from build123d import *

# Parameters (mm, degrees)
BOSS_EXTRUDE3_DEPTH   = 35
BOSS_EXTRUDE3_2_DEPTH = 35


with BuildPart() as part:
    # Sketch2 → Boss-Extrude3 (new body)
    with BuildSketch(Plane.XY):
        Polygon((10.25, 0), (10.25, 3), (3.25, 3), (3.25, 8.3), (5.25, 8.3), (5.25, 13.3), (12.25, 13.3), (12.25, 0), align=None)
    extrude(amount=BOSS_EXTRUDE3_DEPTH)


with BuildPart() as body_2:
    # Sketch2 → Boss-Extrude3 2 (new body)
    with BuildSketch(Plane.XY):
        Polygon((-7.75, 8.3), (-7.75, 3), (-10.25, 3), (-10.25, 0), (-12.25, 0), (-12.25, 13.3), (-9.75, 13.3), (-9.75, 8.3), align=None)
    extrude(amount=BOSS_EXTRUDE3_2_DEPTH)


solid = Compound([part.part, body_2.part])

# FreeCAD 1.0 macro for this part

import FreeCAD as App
import Part
import Sketcher

V = App.Vector

doc = App.newDocument("Part")
body = doc.addObject("PartDesign::Body", "Body")

# Sketch on XY plane
sketch1 = body.newObject("Sketcher::SketchObject", "Sketch")
sketch1.AttachmentSupport = (doc.getObject("XY_Plane"), [""])
sketch1.MapMode = "FlatFace"
sketch1.addGeometry(Part.LineSegment(V(10.2, 3, 0), V(10.2, 0, 0)), False)
sketch1.addGeometry(Part.LineSegment(V(10.2, 0, 0), V(12.2, 0, 0)), False)
sketch1.addGeometry(Part.LineSegment(V(12.2, 0, 0), V(12.2, 13.3, 0)), False)
sketch1.addGeometry(Part.LineSegment(V(12.2, 13.3, 0), V(5.2, 13.3, 0)), False)
sketch1.addGeometry(Part.LineSegment(V(5.2, 13.3, 0), V(5.2, 8.3, 0)), False)
sketch1.addGeometry(Part.LineSegment(V(5.2, 8.3, 0), V(3.2, 8.3, 0)), False)
sketch1.addGeometry(Part.LineSegment(V(3.2, 8.3, 0), V(3.2, 3, 0)), False)
sketch1.addGeometry(Part.LineSegment(V(3.2, 3, 0), V(10.2, 3, 0)), False)
sketch1.addConstraint(Sketcher.Constraint("Coincident", 0, 2, 1, 1))
sketch1.addConstraint(Sketcher.Constraint("Coincident", 1, 2, 2, 1))
sketch1.addConstraint(Sketcher.Constraint("Coincident", 2, 2, 3, 1))
sketch1.addConstraint(Sketcher.Constraint("Coincident", 3, 2, 4, 1))
sketch1.addConstraint(Sketcher.Constraint("Coincident", 4, 2, 5, 1))
sketch1.addConstraint(Sketcher.Constraint("Coincident", 5, 2, 6, 1))
sketch1.addConstraint(Sketcher.Constraint("Coincident", 6, 2, 7, 1))
sketch1.addConstraint(Sketcher.Constraint("Coincident", 7, 2, 0, 1))
sketch1.addConstraint(Sketcher.Constraint("Vertical", 0))
sketch1.addConstraint(Sketcher.Constraint("Horizontal", 1))
sketch1.addConstraint(Sketcher.Constraint("Vertical", 2))
sketch1.addConstraint(Sketcher.Constraint("Horizontal", 3))
sketch1.addConstraint(Sketcher.Constraint("Vertical", 4))
sketch1.addConstraint(Sketcher.Constraint("Horizontal", 5))
sketch1.addConstraint(Sketcher.Constraint("Vertical", 6))
sketch1.addConstraint(Sketcher.Constraint("Horizontal", 7))
sketch1.addConstraint(Sketcher.Constraint("PointOnObject", 0, 2, -1))
sketch1.addConstraint(Sketcher.Constraint("Equal", 1, 5))
sketch1.addConstraint(Sketcher.Constraint("DistanceX", 1, 1, 1, 2, 2.0))
sketch1.addConstraint(Sketcher.Constraint("DistanceX", 3, 2, 3, 1, 7.0))
sketch1.addConstraint(Sketcher.Constraint("DistanceY", 0, 2, 0, 1, 3.0))
sketch1.addConstraint(Sketcher.Constraint("DistanceY", 4, 2, 4, 1, 5.0))
sketch1.addConstraint(Sketcher.Constraint("DistanceY", 2, 1, 2, 2, 13.3))
sketch1.addConstraint(Sketcher.Constraint("DistanceX", -1, 1, 0, 2, 10.25))
pad1 = body.newObject("PartDesign::Pad", "Pad")
pad1.Profile = sketch1
pad1.Length = 35
body2 = doc.addObject("PartDesign::Body", "Body001")

# Sketch on XY plane
sketch2 = body2.newObject("Sketcher::SketchObject", "Sketch001")
sketch2.AttachmentSupport = (doc.getObject("XY_Plane001"), [""])
sketch2.MapMode = "FlatFace"
sketch2.addGeometry(Part.LineSegment(V(-7.8, 3, 0), V(-7.8, 8.3, 0)), False)
sketch2.addGeometry(Part.LineSegment(V(-7.8, 8.3, 0), V(-9.8, 8.3, 0)), False)
sketch2.addGeometry(Part.LineSegment(V(-9.8, 8.3, 0), V(-9.8, 13.3, 0)), False)
sketch2.addGeometry(Part.LineSegment(V(-9.8, 13.3, 0), V(-12.2, 13.3, 0)), False)
sketch2.addGeometry(Part.LineSegment(V(-12.2, 13.3, 0), V(-12.2, 0, 0)), False)
sketch2.addGeometry(Part.LineSegment(V(-12.2, 0, 0), V(-10.2, 0, 0)), False)
sketch2.addGeometry(Part.LineSegment(V(-10.2, 0, 0), V(-10.2, 3, 0)), False)
sketch2.addGeometry(Part.LineSegment(V(-10.2, 3, 0), V(-7.8, 3, 0)), False)
sketch2.addConstraint(Sketcher.Constraint("Coincident", 0, 2, 1, 1))
sketch2.addConstraint(Sketcher.Constraint("Coincident", 1, 2, 2, 1))
sketch2.addConstraint(Sketcher.Constraint("Coincident", 2, 2, 3, 1))
sketch2.addConstraint(Sketcher.Constraint("Coincident", 3, 2, 4, 1))
sketch2.addConstraint(Sketcher.Constraint("Coincident", 4, 2, 5, 1))
sketch2.addConstraint(Sketcher.Constraint("Coincident", 5, 2, 6, 1))
sketch2.addConstraint(Sketcher.Constraint("Coincident", 6, 2, 7, 1))
sketch2.addConstraint(Sketcher.Constraint("Coincident", 7, 2, 0, 1))
sketch2.addConstraint(Sketcher.Constraint("Vertical", 0))
sketch2.addConstraint(Sketcher.Constraint("Horizontal", 1))
sketch2.addConstraint(Sketcher.Constraint("Vertical", 2))
sketch2.addConstraint(Sketcher.Constraint("Horizontal", 3))
sketch2.addConstraint(Sketcher.Constraint("Vertical", 4))
sketch2.addConstraint(Sketcher.Constraint("Horizontal", 5))
sketch2.addConstraint(Sketcher.Constraint("Vertical", 6))
sketch2.addConstraint(Sketcher.Constraint("Horizontal", 7))
sketch2.addConstraint(Sketcher.Constraint("PointOnObject", 4, 2, -1))
sketch2.addConstraint(Sketcher.Constraint("Equal", 1, 5))
sketch2.addConstraint(Sketcher.Constraint("DistanceX", 1, 2, 1, 1, 2.0))
sketch2.addConstraint(Sketcher.Constraint("DistanceY", 2, 1, 2, 2, 5.0))
sketch2.addConstraint(Sketcher.Constraint("DistanceY", 6, 1, 6, 2, 3.0))
sketch2.addConstraint(Sketcher.Constraint("DistanceX", 3, 2, 3, 1, 2.5))
sketch2.addConstraint(Sketcher.Constraint("DistanceY", 0, 1, 0, 2, 5.3))
sketch2.addConstraint(Sketcher.Constraint("DistanceX", 0, 2, -1, 1, 7.75))
pad2 = body2.newObject("PartDesign::Pad", "Pad001")
pad2.Profile = sketch2
pad2.Length = 35

doc.recompute()
